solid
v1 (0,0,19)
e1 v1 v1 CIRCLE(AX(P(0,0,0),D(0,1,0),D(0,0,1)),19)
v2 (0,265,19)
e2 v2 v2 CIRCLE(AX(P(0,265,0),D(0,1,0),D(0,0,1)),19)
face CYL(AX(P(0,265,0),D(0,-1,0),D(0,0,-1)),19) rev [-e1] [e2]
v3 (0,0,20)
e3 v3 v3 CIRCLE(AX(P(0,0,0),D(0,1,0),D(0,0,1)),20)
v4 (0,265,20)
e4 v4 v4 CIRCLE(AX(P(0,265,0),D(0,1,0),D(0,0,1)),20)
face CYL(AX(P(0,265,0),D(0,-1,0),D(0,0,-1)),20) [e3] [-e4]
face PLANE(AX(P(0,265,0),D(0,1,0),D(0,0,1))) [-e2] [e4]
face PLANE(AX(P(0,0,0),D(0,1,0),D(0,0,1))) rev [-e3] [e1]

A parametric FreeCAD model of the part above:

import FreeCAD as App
import Part
import Sketcher

doc = App.newDocument("Part")
body = doc.addObject("PartDesign::Body", "Body")

sketch1 = doc.addObject("Sketcher::SketchObject", "Sketch")
body.addObject(sketch1)
sketch1.AttachmentSupport = (doc.XZ_Plane, [""])
sketch1.MapMode = "FlatFace"
sketch1.addGeometry([
    Part.Circle(App.Vector(0, 0, 0), App.Vector(0, 0, 1), 20),
    Part.Circle(App.Vector(0, 0, 0), App.Vector(0, 0, 1), 19),
], False)
sketch1.addConstraint([
    Sketcher.Constraint("Coincident", 0, 3, -1, 1),
    Sketcher.Constraint("Coincident", 1, 3, -1, 1),
    Sketcher.Constraint("Diameter", 0, 40.0),
    Sketcher.Constraint("Diameter", 1, 38.0),
])
pad1 = doc.addObject("PartDesign::Pad", "Pad")
body.addObject(pad1)
pad1.Profile = sketch1
pad1.Length = 265
pad1.Reversed = True

doc.recompute()
